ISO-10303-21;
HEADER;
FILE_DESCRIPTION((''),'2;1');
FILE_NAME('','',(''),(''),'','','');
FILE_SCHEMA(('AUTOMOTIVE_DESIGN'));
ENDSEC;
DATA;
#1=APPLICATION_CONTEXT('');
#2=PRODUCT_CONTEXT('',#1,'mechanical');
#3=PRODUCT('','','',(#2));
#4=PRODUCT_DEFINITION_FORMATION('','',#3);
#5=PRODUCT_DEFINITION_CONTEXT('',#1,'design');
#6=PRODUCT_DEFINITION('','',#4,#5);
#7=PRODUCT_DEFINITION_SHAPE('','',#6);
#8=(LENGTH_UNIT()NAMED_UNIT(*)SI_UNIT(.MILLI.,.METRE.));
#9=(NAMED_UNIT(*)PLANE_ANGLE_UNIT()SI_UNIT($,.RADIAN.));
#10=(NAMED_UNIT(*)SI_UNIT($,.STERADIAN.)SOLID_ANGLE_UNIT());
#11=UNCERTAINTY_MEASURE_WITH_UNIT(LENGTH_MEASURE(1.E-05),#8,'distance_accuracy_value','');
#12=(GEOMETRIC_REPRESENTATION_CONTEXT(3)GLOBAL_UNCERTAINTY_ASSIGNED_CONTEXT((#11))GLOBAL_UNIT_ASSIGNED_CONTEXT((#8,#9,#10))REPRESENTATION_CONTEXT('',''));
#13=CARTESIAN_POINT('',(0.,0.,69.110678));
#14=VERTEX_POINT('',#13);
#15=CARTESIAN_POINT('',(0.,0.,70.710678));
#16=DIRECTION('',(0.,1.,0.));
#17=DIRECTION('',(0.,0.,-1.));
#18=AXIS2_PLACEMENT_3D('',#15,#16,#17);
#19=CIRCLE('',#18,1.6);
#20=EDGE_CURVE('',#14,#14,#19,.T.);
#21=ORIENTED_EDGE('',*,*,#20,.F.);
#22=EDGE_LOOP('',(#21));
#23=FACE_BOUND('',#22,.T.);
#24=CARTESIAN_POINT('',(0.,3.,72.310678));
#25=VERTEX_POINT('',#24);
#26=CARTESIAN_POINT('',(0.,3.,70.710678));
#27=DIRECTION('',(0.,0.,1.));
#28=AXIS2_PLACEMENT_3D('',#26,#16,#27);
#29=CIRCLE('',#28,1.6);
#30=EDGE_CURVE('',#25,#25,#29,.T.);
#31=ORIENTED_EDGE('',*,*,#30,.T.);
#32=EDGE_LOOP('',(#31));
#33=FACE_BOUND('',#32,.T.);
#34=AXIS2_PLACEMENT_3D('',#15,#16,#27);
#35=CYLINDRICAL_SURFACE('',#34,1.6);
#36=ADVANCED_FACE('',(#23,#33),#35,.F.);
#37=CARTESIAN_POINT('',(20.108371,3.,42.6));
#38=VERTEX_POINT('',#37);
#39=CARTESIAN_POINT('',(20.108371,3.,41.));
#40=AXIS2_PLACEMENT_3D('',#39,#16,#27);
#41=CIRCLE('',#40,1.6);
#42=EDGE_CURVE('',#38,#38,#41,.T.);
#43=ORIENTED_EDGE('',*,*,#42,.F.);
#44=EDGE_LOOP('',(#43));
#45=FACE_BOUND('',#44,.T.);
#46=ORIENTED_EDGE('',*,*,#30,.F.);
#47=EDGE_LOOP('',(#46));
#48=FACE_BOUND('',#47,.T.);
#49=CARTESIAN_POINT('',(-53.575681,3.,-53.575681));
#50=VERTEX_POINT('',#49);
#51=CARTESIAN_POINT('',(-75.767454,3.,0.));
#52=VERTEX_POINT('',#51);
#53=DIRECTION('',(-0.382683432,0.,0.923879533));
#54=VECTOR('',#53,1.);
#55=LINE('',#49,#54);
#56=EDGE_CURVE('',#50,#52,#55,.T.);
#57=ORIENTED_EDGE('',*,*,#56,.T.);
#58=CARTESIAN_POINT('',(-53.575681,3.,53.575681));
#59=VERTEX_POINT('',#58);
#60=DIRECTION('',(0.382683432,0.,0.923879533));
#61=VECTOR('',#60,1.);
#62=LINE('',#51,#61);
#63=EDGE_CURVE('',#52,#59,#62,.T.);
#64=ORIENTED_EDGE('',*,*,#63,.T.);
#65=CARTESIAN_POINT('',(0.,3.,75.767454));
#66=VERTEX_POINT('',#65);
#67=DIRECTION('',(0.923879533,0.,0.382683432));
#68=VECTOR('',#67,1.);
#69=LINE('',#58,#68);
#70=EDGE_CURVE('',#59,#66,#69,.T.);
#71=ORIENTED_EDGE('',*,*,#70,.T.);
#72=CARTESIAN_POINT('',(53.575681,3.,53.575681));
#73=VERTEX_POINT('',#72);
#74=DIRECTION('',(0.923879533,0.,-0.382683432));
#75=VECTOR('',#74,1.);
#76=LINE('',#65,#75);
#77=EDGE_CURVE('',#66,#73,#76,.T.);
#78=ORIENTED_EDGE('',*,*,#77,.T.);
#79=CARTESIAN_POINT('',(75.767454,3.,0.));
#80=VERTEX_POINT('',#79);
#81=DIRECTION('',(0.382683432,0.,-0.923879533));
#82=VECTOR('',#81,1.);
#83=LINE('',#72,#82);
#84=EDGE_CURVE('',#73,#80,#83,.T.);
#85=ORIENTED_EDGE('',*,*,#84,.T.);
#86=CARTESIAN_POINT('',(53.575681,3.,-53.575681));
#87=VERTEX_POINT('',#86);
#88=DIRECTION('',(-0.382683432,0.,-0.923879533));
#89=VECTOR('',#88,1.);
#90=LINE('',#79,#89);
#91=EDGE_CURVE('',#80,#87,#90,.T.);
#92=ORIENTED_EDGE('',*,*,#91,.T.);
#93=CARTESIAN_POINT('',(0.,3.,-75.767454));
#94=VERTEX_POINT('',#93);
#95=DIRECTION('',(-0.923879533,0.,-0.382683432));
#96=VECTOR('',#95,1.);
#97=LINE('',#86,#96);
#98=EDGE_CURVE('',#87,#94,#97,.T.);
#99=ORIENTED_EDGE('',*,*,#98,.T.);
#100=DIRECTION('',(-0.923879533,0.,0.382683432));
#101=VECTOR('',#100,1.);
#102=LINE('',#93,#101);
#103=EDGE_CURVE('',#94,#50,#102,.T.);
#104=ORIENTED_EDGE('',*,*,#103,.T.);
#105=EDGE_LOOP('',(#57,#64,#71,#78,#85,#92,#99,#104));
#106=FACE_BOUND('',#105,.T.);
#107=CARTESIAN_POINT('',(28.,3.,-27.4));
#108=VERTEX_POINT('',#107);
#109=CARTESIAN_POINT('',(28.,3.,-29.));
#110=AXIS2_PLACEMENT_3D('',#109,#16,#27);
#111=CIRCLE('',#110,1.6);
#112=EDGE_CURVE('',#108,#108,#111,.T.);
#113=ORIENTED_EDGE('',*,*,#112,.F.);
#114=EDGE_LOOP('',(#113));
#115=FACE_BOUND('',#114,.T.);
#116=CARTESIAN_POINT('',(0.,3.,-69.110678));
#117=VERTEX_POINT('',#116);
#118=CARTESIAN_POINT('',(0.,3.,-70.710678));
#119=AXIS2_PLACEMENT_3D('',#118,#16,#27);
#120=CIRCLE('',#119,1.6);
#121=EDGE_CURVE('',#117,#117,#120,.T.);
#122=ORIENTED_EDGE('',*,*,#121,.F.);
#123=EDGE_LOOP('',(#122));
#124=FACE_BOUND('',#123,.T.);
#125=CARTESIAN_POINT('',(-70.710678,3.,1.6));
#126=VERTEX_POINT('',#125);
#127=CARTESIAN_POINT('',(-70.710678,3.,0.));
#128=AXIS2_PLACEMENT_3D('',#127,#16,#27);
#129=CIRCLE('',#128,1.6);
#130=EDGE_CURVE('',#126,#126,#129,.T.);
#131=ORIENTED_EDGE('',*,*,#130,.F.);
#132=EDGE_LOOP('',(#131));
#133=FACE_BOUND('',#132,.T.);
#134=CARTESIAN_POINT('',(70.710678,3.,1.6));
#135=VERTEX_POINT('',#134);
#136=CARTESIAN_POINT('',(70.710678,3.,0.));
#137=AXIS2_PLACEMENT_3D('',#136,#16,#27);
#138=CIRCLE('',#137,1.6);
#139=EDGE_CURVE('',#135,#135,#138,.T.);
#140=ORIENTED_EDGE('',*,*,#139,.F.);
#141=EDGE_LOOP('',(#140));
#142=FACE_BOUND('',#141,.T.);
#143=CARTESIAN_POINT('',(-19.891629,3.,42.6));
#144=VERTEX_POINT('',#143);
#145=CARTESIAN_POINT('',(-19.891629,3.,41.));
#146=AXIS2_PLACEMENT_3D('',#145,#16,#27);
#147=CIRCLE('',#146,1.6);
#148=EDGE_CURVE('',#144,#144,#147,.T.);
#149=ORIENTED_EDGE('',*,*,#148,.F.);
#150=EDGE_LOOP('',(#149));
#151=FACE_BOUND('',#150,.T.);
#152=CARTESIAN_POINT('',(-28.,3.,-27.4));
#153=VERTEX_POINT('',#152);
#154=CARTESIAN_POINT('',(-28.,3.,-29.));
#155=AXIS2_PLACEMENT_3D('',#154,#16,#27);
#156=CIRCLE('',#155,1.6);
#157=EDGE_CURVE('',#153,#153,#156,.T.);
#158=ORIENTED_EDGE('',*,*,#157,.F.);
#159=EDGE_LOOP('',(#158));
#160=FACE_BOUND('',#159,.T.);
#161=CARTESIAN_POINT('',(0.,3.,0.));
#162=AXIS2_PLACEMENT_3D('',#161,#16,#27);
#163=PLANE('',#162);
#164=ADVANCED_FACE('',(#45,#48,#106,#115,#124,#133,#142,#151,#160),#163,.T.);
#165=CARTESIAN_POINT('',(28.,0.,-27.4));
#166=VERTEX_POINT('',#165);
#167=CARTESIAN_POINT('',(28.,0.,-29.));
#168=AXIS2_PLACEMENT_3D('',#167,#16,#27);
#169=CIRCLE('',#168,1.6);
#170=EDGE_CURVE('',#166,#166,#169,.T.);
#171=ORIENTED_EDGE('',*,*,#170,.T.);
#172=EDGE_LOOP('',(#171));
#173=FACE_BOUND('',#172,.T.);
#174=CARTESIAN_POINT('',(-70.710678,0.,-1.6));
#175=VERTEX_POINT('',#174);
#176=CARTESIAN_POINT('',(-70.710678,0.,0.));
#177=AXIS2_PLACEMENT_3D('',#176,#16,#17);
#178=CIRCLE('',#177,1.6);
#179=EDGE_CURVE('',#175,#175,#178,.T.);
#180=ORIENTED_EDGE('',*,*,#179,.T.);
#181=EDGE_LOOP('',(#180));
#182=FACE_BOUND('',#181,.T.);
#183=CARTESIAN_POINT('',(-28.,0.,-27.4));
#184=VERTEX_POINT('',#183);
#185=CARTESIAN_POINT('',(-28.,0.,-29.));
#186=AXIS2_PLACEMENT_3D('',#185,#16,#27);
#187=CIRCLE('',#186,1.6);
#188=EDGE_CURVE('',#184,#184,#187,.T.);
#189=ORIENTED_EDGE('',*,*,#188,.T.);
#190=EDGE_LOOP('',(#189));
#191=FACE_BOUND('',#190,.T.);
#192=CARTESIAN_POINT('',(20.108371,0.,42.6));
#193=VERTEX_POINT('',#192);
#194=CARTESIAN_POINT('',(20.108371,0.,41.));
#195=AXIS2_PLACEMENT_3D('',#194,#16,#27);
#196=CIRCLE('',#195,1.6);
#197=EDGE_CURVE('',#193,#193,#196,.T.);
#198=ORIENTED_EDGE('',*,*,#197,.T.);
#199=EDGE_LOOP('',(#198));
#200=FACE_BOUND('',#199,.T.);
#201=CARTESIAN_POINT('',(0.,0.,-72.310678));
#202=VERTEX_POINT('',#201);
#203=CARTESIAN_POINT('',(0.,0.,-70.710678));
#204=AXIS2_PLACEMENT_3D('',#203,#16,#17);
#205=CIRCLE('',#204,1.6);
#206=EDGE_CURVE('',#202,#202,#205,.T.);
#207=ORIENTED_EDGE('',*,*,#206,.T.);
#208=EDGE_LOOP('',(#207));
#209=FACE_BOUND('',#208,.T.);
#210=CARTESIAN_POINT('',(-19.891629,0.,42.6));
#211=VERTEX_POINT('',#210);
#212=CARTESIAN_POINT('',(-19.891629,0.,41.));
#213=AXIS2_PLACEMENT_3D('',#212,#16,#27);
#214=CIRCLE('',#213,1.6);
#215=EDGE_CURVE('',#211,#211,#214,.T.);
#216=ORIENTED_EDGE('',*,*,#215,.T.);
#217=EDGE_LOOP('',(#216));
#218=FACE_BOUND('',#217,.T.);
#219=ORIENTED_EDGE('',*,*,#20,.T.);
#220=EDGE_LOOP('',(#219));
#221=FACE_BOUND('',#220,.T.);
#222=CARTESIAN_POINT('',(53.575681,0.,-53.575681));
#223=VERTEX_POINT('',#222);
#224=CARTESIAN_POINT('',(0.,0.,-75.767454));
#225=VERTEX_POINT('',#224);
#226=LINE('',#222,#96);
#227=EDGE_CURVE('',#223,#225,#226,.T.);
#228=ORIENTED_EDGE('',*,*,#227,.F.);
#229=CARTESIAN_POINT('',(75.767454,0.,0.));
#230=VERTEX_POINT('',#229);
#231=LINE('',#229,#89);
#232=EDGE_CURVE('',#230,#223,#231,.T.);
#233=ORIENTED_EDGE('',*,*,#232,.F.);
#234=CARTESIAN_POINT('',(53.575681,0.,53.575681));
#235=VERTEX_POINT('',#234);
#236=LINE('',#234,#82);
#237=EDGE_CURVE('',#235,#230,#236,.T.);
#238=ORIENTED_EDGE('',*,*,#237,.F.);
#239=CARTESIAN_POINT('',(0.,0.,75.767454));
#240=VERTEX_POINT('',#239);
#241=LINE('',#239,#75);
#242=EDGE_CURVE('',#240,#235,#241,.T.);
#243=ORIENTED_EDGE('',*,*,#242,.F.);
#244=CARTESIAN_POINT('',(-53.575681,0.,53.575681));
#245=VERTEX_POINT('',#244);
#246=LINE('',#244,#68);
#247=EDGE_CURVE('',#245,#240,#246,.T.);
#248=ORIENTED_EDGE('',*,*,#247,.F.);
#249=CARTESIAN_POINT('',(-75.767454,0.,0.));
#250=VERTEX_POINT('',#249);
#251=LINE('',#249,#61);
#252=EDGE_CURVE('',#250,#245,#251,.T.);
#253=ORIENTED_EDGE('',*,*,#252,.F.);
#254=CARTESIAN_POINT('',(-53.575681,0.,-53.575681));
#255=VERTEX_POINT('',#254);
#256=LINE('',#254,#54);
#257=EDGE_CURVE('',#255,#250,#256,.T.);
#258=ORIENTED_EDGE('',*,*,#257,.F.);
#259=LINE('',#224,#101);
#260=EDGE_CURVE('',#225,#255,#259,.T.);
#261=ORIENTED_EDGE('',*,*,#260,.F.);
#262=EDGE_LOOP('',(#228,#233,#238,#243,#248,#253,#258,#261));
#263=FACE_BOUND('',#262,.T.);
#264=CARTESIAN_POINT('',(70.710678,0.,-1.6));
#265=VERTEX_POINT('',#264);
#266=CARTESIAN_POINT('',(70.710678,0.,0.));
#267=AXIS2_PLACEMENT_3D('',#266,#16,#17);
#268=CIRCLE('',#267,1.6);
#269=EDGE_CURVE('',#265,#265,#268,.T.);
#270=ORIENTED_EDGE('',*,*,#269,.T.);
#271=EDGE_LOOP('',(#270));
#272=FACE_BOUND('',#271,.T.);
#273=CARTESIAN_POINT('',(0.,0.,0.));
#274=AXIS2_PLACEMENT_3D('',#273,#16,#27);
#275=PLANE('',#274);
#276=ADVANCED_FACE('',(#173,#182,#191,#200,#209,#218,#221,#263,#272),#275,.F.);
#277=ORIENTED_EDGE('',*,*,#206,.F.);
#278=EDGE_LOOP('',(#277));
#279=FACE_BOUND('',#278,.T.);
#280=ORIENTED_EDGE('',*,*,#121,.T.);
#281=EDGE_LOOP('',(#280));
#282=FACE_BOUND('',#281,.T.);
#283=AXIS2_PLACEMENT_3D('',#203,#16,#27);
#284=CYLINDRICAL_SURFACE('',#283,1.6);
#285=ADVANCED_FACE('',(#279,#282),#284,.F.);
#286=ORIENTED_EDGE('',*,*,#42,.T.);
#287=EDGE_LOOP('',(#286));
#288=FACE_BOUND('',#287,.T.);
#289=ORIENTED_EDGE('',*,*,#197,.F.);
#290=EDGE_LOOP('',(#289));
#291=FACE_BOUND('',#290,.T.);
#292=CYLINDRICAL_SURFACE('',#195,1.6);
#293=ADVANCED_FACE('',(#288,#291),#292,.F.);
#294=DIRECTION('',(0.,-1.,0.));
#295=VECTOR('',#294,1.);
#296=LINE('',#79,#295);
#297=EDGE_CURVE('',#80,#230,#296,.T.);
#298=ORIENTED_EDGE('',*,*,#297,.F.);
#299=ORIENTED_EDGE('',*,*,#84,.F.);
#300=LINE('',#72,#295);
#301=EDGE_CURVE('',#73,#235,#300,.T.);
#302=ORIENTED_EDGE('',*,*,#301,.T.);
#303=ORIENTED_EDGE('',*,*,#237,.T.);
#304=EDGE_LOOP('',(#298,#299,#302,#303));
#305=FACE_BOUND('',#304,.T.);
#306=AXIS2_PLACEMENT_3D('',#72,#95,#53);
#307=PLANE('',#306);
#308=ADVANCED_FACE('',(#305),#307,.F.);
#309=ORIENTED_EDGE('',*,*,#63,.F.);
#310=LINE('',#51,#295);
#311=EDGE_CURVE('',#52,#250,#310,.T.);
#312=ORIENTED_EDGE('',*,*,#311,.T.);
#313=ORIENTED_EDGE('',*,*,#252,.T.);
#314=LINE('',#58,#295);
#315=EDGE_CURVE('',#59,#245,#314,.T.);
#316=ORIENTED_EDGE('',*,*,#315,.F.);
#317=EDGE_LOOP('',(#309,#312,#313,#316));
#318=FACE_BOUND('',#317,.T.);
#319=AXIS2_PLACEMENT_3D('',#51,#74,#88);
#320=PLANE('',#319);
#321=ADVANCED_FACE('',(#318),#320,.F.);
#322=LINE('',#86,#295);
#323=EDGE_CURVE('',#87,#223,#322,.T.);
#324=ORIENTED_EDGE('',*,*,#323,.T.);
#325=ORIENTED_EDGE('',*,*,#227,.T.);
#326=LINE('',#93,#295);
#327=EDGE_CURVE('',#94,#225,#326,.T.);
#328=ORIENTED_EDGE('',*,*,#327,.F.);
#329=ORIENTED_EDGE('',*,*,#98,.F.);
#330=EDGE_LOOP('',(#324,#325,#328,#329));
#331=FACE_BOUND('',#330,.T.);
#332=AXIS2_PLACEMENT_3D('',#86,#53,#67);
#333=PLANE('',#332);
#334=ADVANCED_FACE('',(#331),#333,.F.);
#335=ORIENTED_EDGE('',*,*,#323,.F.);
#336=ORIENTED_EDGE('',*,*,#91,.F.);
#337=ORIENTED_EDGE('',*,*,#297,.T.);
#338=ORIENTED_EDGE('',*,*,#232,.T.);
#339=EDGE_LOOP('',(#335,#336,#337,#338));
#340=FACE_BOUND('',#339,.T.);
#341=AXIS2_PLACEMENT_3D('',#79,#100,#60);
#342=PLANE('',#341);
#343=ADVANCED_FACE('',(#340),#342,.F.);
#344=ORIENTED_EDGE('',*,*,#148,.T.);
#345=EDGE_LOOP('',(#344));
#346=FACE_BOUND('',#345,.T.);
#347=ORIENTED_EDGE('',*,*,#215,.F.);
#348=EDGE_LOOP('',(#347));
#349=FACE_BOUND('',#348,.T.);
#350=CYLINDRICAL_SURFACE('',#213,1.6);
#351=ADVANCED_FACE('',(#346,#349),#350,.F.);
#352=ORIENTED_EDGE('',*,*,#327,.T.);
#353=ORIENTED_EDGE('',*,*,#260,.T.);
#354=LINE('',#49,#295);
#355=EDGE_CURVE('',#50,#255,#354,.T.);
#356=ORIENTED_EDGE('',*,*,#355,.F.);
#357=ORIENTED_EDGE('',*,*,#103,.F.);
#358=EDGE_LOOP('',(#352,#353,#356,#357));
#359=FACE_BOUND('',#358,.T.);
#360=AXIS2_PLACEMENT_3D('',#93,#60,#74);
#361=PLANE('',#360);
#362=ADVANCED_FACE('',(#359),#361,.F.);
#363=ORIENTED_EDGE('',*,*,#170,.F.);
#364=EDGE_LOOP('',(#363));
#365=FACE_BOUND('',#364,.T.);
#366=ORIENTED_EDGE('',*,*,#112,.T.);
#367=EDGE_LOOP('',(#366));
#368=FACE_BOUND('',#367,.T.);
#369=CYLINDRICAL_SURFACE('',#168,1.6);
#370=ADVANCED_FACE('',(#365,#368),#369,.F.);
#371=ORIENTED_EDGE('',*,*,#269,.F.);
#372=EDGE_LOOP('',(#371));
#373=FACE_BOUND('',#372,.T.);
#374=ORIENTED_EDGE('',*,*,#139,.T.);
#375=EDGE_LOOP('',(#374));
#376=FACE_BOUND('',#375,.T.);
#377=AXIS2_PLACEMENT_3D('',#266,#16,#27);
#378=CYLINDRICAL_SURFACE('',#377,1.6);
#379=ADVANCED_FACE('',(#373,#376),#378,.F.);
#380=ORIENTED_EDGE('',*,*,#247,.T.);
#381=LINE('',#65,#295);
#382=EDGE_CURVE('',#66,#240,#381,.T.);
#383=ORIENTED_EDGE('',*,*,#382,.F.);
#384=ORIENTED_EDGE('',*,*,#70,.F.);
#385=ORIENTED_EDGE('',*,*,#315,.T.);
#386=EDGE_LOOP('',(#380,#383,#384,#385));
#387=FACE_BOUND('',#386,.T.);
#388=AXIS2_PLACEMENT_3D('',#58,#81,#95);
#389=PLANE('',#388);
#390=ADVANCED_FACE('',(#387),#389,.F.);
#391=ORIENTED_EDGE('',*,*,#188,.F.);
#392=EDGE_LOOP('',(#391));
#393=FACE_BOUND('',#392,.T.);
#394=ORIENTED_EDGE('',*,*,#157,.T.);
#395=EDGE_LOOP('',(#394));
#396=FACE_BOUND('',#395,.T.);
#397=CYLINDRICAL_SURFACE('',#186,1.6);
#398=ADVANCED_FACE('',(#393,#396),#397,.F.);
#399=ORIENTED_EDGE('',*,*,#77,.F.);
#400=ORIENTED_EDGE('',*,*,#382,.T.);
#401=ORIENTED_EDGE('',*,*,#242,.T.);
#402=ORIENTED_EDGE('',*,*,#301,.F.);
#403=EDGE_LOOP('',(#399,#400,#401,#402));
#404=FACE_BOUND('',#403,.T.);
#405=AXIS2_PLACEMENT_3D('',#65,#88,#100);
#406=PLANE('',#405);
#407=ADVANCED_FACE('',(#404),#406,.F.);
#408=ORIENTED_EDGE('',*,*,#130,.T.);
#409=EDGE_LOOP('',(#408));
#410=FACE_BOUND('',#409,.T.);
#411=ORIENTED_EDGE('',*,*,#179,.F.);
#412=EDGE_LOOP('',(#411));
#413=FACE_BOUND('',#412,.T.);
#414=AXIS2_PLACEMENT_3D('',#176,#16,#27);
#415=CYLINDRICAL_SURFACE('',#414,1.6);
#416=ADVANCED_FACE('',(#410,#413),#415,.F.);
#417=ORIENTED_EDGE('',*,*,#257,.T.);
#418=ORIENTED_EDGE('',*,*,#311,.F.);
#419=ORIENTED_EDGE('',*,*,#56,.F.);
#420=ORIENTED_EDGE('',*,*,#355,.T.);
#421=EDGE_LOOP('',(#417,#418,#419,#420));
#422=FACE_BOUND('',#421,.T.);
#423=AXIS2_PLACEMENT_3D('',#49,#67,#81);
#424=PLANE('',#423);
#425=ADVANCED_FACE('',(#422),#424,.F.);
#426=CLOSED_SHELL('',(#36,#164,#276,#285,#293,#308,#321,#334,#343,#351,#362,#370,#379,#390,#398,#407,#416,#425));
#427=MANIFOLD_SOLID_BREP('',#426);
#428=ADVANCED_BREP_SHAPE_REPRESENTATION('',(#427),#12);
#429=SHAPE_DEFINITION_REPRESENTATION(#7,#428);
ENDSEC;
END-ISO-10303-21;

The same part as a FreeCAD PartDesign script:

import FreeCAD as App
import Part
import Sketcher

V = App.Vector
Q = App.Units.Quantity

doc = App.newDocument("Part")
params = doc.addObject("Spreadsheet::Sheet", "Params")
for row, (alias, value) in enumerate([
    ("pad1_length", "3 mm"),
    ("sketch2_diameter", "3.2 mm"),
    ("sketch3_diameter", "3.2 mm"),
], start=1):
    params.set(f"A{row}", alias)
    params.set(f"B{row}", "=" + value)
    params.setAlias(f"B{row}", alias)

body = doc.addObject("PartDesign::Body", "Body")

# Sketch on XZ plane
sketch1 = body.newObject("Sketcher::SketchObject", "Sketch")
sketch1.AttachmentSupport = (doc.getObject("XZ_Plane"), [""])
sketch1.MapMode = "FlatFace"
sketch1.addGeometry(Part.LineSegment(V(0, 76, 0), V(54, 54, 0)), False)
sketch1.addGeometry(Part.LineSegment(V(54, 54, 0), V(76, 0, 0)), False)
sketch1.addGeometry(Part.LineSegment(V(76, 0, 0), V(54, -54, 0)), False)
sketch1.addGeometry(Part.LineSegment(V(54, -54, 0), V(0, -76, 0)), False)
sketch1.addGeometry(Part.LineSegment(V(0, -76, 0), V(-54, -54, 0)), False)
sketch1.addGeometry(Part.LineSegment(V(-54, -54, 0), V(-76, 0, 0)), False)
sketch1.addGeometry(Part.LineSegment(V(-76, 0, 0), V(-54, 54, 0)), False)
sketch1.addGeometry(Part.LineSegment(V(-54, 54, 0), V(0, 76, 0)), False)
sketch1.addConstraint(Sketcher.Constraint("Coincident", 0, 2, 1, 1))
sketch1.addConstraint(Sketcher.Constraint("Coincident", 1, 2, 2, 1))
sketch1.addConstraint(Sketcher.Constraint("Coincident", 2, 2, 3, 1))
sketch1.addConstraint(Sketcher.Constraint("Coincident", 3, 2, 4, 1))
sketch1.addConstraint(Sketcher.Constraint("Coincident", 4, 2, 5, 1))
sketch1.addConstraint(Sketcher.Constraint("Coincident", 5, 2, 6, 1))
sketch1.addConstraint(Sketcher.Constraint("Coincident", 6, 2, 7, 1))
sketch1.addConstraint(Sketcher.Constraint("Coincident", 7, 2, 0, 1))
sketch1.addConstraint(Sketcher.Constraint("Symmetric", 0, 2, 4, 2, -1, 1))
sketch1.addConstraint(Sketcher.Constraint("Symmetric", 1, 2, 5, 2, -1, 1))
sketch1.addConstraint(Sketcher.Constraint("Symmetric", 2, 2, 6, 2, -1, 1))
sketch1.addConstraint(Sketcher.Constraint("Symmetric", 3, 2, 7, 2, -1, 1))
sketch1.addConstraint(Sketcher.Constraint("Symmetric", 2, 2, 4, 2, -2))
sketch1.addConstraint(Sketcher.Constraint("PointOnObject", 1, 2, -1))
sketch1.addConstraint(Sketcher.Constraint("PointOnObject", 3, 2, -2))
sketch1.addConstraint(Sketcher.Constraint("Perpendicular", 0, 2))
sketch1.addConstraint(Sketcher.Constraint("Equal", 0, 1))
sketch1.addConstraint(Sketcher.Constraint("Angle", 0, Q("-22.5 deg")))
sketch1.addConstraint(Sketcher.Constraint("Distance", 0, Q("57.989899 mm")))
pad1 = body.newObject("PartDesign::Pad", "Pad")
pad1.Profile = sketch1
pad1.setExpression("Length", "Params.pad1_length")
pad1.Reversed = True

# Sketch on XZ plane
sketch2 = body.newObject("Sketcher::SketchObject", "Sketch001")
sketch2.AttachmentSupport = (doc.getObject("XZ_Plane"), [""])
sketch2.MapMode = "FlatFace"
sketch2.AttachmentOffset = App.Placement(V(0, 0, -3), App.Rotation())
sketch2.addGeometry(Part.Circle(V(-70.7, 0, 0), V(0, 0, 1), 1.6), False)
sketch2.addGeometry(Part.Circle(V(0, -70.7, 0), V(0, 0, 1), 1.6), False)
sketch2.addGeometry(Part.Circle(V(70.7, 0, 0), V(0, 0, 1), 1.6), False)
sketch2.addGeometry(Part.Circle(V(0, 70.7, 0), V(0, 0, 1), 1.6), False)
sketch2.addConstraint(Sketcher.Constraint("Equal", 0, 1))
sketch2.addConstraint(Sketcher.Constraint("Equal", 1, 2))
sketch2.addConstraint(Sketcher.Constraint("Equal", 2, 3))
sketch2.addConstraint(Sketcher.Constraint("Symmetric", 0, 3, 2, 3, -1, 1))
sketch2.addConstraint(Sketcher.Constraint("Symmetric", 1, 3, 3, 3, -1, 1))
sketch2.addConstraint(Sketcher.Constraint("PointOnObject", 0, 3, -1))
sketch2.addConstraint(Sketcher.Constraint("PointOnObject", 1, 3, -2))
sketch2.addConstraint(Sketcher.Constraint("Diameter", 0, Q("3.2 mm")))
sketch2.addConstraint(Sketcher.Constraint("DistanceX", 0, 3, -1, 1, Q("70.710678 mm")))
sketch2.addConstraint(Sketcher.Constraint("DistanceY", 1, 3, -1, 1, Q("70.710678 mm")))
sketch2.setExpression("Constraints[7]", "Params.sketch2_diameter")
pocket1 = body.newObject("PartDesign::Pocket", "Pocket")
pocket1.Profile = sketch2
pocket1.Type = "ThroughAll"
pocket1.Midplane = True

# Sketch on XZ plane
sketch3 = body.newObject("Sketcher::SketchObject", "Sketch002")
sketch3.AttachmentSupport = (doc.getObject("XZ_Plane"), [""])
sketch3.MapMode = "FlatFace"
sketch3.AttachmentOffset = App.Placement(V(0, 0, -3), App.Rotation())
sketch3.addGeometry(Part.Circle(V(-19.9, 41, 0), V(0, 0, 1), 1.6), False)
sketch3.addGeometry(Part.Circle(V(20.1, 41, 0), V(0, 0, 1), 1.6), False)
sketch3.addGeometry(Part.Circle(V(-28, -29, 0), V(0, 0, 1), 1.6), False)
sketch3.addGeometry(Part.Circle(V(28, -29, 0), V(0, 0, 1), 1.6), False)
sketch3.addConstraint(Sketcher.Constraint("Equal", 0, 1))
sketch3.addConstraint(Sketcher.Constraint("Equal", 1, 2))
sketch3.addConstraint(Sketcher.Constraint("Equal", 2, 3))
sketch3.addConstraint(Sketcher.Constraint("Symmetric", 2, 3, 3, 3, -2))
sketch3.addConstraint(Sketcher.Constraint("Horizontal", 0, 3, 1, 3))
sketch3.addConstraint(Sketcher.Constraint("Diameter", 0, Q("3.2 mm")))
sketch3.addConstraint(Sketcher.Constraint("DistanceY", -1, 1, 0, 3, Q("41 mm")))
sketch3.addConstraint(Sketcher.Constraint("DistanceX", 2, 3, -1, 1, Q("28 mm")))
sketch3.addConstraint(Sketcher.Constraint("DistanceY", 2, 3, -1, 1, Q("29 mm")))
sketch3.addConstraint(Sketcher.Constraint("DistanceX", 0, 3, 1, 3, Q("40 mm")))
sketch3.addConstraint(Sketcher.Constraint("DistanceX", 0, 3, -1, 1, Q("19.891629 mm")))
sketch3.setExpression("Constraints[5]", "Params.sketch3_diameter")
pocket2 = body.newObject("PartDesign::Pocket", "Pocket001")
pocket2.Profile = sketch3
pocket2.Type = "ThroughAll"
pocket2.Midplane = True

doc.recompute()
